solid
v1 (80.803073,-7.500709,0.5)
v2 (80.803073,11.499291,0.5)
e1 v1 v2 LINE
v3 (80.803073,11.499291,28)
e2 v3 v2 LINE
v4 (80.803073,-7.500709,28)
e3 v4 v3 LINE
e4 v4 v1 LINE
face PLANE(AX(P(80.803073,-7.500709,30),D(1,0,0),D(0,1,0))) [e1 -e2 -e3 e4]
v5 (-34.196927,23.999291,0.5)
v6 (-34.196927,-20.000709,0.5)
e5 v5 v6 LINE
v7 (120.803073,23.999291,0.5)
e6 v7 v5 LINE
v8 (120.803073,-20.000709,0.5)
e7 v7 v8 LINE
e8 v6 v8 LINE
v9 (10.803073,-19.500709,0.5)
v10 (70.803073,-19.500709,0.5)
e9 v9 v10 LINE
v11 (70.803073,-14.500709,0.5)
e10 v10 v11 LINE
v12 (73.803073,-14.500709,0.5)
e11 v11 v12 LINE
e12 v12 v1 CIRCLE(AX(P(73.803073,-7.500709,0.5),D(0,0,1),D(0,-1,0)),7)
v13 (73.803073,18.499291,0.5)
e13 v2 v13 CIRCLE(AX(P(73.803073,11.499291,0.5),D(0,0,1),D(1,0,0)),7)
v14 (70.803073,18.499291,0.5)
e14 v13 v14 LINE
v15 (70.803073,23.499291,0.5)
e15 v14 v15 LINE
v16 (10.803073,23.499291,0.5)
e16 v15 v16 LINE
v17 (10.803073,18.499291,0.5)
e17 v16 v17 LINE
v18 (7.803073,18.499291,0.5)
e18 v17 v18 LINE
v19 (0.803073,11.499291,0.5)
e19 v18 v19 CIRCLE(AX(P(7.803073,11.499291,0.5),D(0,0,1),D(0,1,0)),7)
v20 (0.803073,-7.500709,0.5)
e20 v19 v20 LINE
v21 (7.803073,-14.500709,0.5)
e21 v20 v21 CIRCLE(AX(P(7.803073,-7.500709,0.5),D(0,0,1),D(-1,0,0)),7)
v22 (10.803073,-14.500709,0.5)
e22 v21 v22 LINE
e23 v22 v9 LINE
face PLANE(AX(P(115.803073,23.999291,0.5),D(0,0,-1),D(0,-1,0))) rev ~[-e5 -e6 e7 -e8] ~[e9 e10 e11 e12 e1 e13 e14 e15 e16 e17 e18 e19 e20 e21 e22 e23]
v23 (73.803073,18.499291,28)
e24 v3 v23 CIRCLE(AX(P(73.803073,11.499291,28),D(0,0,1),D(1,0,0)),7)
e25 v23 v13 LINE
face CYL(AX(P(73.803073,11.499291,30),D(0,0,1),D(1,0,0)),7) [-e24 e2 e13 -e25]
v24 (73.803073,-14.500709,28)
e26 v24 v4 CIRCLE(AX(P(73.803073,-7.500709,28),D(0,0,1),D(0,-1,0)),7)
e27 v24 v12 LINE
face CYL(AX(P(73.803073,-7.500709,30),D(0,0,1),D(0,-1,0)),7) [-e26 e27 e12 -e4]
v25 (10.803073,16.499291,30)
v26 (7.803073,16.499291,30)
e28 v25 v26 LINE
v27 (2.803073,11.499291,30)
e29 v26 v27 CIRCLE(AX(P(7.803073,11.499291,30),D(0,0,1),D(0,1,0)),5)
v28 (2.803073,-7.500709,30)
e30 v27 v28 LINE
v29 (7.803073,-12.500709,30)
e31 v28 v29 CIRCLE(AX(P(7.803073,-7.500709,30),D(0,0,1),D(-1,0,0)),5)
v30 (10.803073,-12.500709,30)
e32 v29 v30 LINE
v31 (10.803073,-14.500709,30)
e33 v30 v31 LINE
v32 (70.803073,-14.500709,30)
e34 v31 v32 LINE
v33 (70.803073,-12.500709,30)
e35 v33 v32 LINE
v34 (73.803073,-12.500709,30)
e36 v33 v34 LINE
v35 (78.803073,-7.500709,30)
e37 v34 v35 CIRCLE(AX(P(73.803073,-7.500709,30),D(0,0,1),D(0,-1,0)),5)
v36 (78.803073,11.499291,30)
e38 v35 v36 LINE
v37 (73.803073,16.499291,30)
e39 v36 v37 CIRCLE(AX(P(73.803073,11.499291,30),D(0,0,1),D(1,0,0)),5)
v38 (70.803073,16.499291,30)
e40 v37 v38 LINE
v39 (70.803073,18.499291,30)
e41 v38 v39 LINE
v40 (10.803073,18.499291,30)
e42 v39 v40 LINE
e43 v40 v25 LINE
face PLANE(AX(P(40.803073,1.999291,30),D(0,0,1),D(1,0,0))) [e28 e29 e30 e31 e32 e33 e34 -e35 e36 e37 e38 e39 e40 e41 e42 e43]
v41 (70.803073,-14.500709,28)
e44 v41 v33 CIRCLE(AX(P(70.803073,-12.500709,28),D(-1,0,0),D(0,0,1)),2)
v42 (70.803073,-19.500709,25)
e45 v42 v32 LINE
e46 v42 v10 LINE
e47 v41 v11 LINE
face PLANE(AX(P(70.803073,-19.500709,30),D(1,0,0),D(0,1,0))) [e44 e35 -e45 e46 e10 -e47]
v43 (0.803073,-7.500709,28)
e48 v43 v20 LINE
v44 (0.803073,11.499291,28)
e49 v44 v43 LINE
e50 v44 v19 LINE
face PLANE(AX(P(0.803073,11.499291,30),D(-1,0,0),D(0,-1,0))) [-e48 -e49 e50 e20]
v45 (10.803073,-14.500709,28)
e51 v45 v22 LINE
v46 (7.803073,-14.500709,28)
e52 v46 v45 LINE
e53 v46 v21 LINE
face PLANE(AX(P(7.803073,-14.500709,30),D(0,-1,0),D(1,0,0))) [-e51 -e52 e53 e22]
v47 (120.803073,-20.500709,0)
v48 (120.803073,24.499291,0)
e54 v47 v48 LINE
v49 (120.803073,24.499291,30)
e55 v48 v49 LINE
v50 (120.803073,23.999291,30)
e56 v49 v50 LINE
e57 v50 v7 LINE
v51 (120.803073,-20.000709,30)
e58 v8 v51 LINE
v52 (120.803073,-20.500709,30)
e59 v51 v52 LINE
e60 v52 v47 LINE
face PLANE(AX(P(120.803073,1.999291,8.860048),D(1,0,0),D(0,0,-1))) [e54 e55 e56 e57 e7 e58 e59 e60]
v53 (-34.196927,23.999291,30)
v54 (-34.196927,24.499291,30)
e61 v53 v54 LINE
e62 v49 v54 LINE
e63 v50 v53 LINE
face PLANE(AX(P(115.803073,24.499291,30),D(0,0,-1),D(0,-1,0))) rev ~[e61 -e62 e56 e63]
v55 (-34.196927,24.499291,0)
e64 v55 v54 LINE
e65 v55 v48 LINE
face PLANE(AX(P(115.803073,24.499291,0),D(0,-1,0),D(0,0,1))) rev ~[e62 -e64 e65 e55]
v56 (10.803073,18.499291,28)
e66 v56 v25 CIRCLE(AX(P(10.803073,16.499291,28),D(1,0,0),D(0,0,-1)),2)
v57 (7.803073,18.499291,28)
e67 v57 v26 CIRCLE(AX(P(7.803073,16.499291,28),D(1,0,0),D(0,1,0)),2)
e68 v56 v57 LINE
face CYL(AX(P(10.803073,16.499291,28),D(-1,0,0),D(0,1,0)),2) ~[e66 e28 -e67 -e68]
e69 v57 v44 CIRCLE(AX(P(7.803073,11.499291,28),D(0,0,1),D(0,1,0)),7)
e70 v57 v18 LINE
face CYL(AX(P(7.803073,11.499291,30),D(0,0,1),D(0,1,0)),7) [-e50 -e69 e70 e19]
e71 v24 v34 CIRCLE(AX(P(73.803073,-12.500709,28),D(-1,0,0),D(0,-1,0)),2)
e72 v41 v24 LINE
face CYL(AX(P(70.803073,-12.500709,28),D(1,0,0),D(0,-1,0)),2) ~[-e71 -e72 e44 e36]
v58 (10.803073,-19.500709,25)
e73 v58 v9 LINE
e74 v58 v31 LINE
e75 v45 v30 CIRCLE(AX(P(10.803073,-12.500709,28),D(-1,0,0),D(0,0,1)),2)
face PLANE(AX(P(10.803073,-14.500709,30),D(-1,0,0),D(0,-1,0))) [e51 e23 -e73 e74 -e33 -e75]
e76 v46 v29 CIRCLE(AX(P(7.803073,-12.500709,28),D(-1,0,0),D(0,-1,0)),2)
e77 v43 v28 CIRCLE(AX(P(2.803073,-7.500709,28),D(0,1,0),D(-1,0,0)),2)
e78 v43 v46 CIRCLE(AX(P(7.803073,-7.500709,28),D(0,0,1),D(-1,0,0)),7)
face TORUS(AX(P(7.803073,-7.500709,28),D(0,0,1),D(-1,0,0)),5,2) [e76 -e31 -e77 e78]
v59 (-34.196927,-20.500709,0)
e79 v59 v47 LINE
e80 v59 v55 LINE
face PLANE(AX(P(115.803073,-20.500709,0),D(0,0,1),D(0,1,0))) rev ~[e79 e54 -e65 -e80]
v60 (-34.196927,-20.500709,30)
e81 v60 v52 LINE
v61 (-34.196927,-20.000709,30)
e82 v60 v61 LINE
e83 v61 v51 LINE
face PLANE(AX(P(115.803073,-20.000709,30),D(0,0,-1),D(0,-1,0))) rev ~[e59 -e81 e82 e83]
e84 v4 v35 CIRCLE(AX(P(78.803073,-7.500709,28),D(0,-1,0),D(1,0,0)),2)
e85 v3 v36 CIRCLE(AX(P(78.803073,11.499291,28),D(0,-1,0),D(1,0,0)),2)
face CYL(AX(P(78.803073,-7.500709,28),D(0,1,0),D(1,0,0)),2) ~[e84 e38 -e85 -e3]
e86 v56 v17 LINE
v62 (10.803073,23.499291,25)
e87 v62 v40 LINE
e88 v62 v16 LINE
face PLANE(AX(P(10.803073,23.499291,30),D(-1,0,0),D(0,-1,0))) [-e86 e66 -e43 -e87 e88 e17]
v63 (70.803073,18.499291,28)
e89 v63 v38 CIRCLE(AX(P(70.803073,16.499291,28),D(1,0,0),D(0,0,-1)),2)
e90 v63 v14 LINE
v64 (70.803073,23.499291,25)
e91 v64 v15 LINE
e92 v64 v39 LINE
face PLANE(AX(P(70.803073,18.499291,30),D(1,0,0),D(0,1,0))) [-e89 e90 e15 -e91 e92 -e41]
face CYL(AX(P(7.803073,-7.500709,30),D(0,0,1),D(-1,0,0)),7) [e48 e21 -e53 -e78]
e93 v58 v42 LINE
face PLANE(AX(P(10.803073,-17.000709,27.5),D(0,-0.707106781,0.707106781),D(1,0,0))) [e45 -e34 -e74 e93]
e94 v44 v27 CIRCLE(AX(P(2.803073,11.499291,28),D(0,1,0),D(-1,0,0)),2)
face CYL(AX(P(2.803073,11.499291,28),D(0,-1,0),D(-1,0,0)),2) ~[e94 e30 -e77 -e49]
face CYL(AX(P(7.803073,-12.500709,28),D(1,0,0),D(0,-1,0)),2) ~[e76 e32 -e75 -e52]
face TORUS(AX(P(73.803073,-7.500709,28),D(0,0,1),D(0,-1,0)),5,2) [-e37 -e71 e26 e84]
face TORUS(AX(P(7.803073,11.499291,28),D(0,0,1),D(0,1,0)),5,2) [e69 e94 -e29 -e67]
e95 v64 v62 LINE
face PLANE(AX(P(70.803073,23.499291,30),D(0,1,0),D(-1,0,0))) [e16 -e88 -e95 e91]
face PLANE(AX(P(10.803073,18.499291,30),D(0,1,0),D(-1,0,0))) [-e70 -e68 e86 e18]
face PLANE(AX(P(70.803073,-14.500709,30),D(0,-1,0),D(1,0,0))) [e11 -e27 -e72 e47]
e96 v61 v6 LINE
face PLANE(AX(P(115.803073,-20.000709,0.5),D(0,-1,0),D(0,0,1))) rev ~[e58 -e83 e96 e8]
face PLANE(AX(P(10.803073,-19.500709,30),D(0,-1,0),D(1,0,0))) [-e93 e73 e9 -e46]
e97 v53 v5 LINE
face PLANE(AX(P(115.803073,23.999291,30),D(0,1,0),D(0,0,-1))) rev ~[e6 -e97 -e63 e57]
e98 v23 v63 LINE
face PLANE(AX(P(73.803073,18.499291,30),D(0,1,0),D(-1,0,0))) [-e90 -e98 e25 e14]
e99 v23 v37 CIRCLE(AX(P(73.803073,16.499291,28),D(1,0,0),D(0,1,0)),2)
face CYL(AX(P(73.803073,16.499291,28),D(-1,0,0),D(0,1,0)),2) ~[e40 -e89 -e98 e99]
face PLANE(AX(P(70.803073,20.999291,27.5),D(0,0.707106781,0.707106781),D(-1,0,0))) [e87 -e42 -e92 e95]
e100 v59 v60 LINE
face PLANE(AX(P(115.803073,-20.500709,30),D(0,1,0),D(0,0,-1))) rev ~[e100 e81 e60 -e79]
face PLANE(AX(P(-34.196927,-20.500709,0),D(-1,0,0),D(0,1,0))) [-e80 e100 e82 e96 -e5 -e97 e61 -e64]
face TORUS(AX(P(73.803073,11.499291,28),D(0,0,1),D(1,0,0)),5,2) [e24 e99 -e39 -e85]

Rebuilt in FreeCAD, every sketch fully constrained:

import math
import FreeCAD as App
import Part
import Sketcher
from FreeCAD import Vector


def edges_at(feature, points):
    """Names of the edges that pass closest to the given points."""
    edges = feature.Shape.Edges
    near = lambda p: min(range(len(edges)), key=lambda i: edges[i].distToShape(Part.Vertex(*p))[0])
    return sorted({f"Edge{near(p) + 1}" for p in points})

doc = App.newDocument("Part")
params = doc.addObject("Spreadsheet::Sheet", "Params")
for row, (alias, value) in enumerate([
    ("sketch1_width", "150 mm"),
    ("sketch1_height", "45 mm"),
    ("pad1_length", "30 mm"),
    ("sketch2_radius", "7 mm"),
    ("sketch2_width", "150 mm"),
    ("sketch2_width2", "60 mm"),
    ("sketch2_width3", "3 mm"),
    ("sketch2_height", "44 mm"),
    ("pocket1_length", "29.5 mm"),
    ("fillet_radius", "2 mm"),
    ("chamfer_size", "5 mm"),
    ("sketch3_width", "44 mm"),
    ("sketch3_width2", "45 mm"),
    ("sketch3_height", "30 mm"),
    ("sketch3_height2", "29.5 mm"),
    ("pad2_length", "5 mm"),
], start=1):
    params.set(f"A{row}", alias)
    params.set(f"B{row}", "=" + value)
    params.setAlias(f"B{row}", alias)

body = doc.addObject("PartDesign::Body", "Body")

sketch1 = doc.addObject("Sketcher::SketchObject", "Sketch")
body.addObject(sketch1)
sketch1.AttachmentSupport = (doc.XY_Plane, [""])
sketch1.MapMode = "FlatFace"
sketch1.addGeometry([
    Part.LineSegment(Vector(-34, 24, 0), Vector(-34, -21, 0)),
    Part.LineSegment(Vector(-34, -21, 0), Vector(116, -21, 0)),
    Part.LineSegment(Vector(116, -21, 0), Vector(116, 24, 0)),
    Part.LineSegment(Vector(116, 24, 0), Vector(-34, 24, 0)),
], False)
sketch1.addConstraint([
    Sketcher.Constraint("Coincident", 0, 2, 1, 1),
    Sketcher.Constraint("Coincident", 1, 2, 2, 1),
    Sketcher.Constraint("Coincident", 2, 2, 3, 1),
    Sketcher.Constraint("Coincident", 3, 2, 0, 1),
    Sketcher.Constraint("Vertical", 0),
    Sketcher.Constraint("Horizontal", 1),
    Sketcher.Constraint("Vertical", 2),
    Sketcher.Constraint("Horizontal", 3),
    Sketcher.Constraint("DistanceX", 1, 1, 1, 2, 150.0),
    Sketcher.Constraint("DistanceY", 0, 2, 0, 1, 45.0),
    Sketcher.Constraint("DistanceY", 0, 2, -1, 1, 20.500709),
    Sketcher.Constraint("DistanceX", 0, 2, -1, 1, 34.196927),
])
sketch1.setExpression("Constraints[8]", "Params.sketch1_width")
sketch1.setExpression("Constraints[9]", "Params.sketch1_height")
pad1 = doc.addObject("PartDesign::Pad", "Pad")
body.addObject(pad1)
pad1.Profile = sketch1
pad1.setExpression("Length", "Params.pad1_length")

sketch2 = doc.addObject("Sketcher::SketchObject", "Sketch001")
body.addObject(sketch2)
sketch2.AttachmentSupport = (doc.XY_Plane, [""])
sketch2.MapMode = "FlatFace"
sketch2.AttachmentOffset = App.Placement(Vector(0, 0, 30), App.Rotation())
sketch2.addGeometry([
    Part.LineSegment(Vector(-34.2, 24, 0), Vector(-34.2, -20, 0)),
    Part.LineSegment(Vector(-34.2, -20, 0), Vector(115.8, -20, 0)),
    Part.LineSegment(Vector(115.8, -20, 0), Vector(115.8, 24, 0)),
    Part.LineSegment(Vector(115.8, 24, 0), Vector(-34.2, 24, 0)),
    Part.LineSegment(Vector(70.8, -14.5, 0), Vector(70.8, -19.5, 0)),
    Part.LineSegment(Vector(70.8, -19.5, 0), Vector(10.8, -19.5, 0)),
    Part.LineSegment(Vector(10.8, -19.5, 0), Vector(10.8, -14.5, 0)),
    Part.LineSegment(Vector(10.8, -14.5, 0), Vector(7.8, -14.5, 0)),
    Part.ArcOfCircle(Part.Circle(Vector(7.8, -7.5, 0), Vector(0, 0, 1), 7), math.radians(-180), math.radians(-90)),
    Part.LineSegment(Vector(0.8, -7.5, 0), Vector(0.8, 11.5, 0)),
    Part.ArcOfCircle(Part.Circle(Vector(7.8, 11.5, 0), Vector(0, 0, 1), 7), math.radians(90), math.radians(180)),
    Part.LineSegment(Vector(7.8, 18.5, 0), Vector(10.8, 18.5, 0)),
    Part.LineSegment(Vector(10.8, 18.5, 0), Vector(10.8, 23.5, 0)),
    Part.LineSegment(Vector(10.8, 23.5, 0), Vector(70.8, 23.5, 0)),
    Part.LineSegment(Vector(70.8, 23.5, 0), Vector(70.8, 18.5, 0)),
    Part.LineSegment(Vector(70.8, 18.5, 0), Vector(73.8, 18.5, 0)),
    Part.ArcOfCircle(Part.Circle(Vector(73.8, 11.5, 0), Vector(0, 0, 1), 7), math.radians(0), math.radians(90)),
    Part.LineSegment(Vector(80.8, 11.5, 0), Vector(80.8, -7.5, 0)),
    Part.ArcOfCircle(Part.Circle(Vector(73.8, -7.5, 0), Vector(0, 0, 1), 7), math.radians(-90), math.radians(0)),
    Part.LineSegment(Vector(73.8, -14.5, 0), Vector(70.8, -14.5, 0)),
], False)
sketch2.addConstraint([
    Sketcher.Constraint("Coincident", 0, 2, 1, 1),
    Sketcher.Constraint("Coincident", 1, 2, 2, 1),
    Sketcher.Constraint("Coincident", 2, 2, 3, 1),
    Sketcher.Constraint("Coincident", 3, 2, 0, 1),
    Sketcher.Constraint("Coincident", 4, 2, 5, 1),
    Sketcher.Constraint("Coincident", 5, 2, 6, 1),
    Sketcher.Constraint("Coincident", 6, 2, 7, 1),
    Sketcher.Constraint("Tangent", 7, 2, 8, 2),
    Sketcher.Constraint("Tangent", 8, 1, 9, 1),
    Sketcher.Constraint("Tangent", 9, 2, 10, 2),
    Sketcher.Constraint("Tangent", 10, 1, 11, 1),
    Sketcher.Constraint("Coincident", 11, 2, 12, 1),
    Sketcher.Constraint("Coincident", 12, 2, 13, 1),
    Sketcher.Constraint("Coincident", 13, 2, 14, 1),
    Sketcher.Constraint("Coincident", 14, 2, 15, 1),
    Sketcher.Constraint("Tangent", 15, 2, 16, 2),
    Sketcher.Constraint("Tangent", 16, 1, 17, 1),
    Sketcher.Constraint("Tangent", 17, 2, 18, 2),
    Sketcher.Constraint("Tangent", 18, 1, 19, 1),
    Sketcher.Constraint("Coincident", 19, 2, 4, 1),
    Sketcher.Constraint("Vertical", 0),
    Sketcher.Constraint("Horizontal", 1),
    Sketcher.Constraint("Vertical", 2),
    Sketcher.Constraint("Horizontal", 3),
    Sketcher.Constraint("Vertical", 4),
    Sketcher.Constraint("Horizontal", 5),
    Sketcher.Constraint("Vertical", 6),
    Sketcher.Constraint("Horizontal", 7),
    Sketcher.Constraint("Vertical", 9),
    Sketcher.Constraint("Horizontal", 11),
    Sketcher.Constraint("Vertical", 12),
    Sketcher.Constraint("Horizontal", 13),
    Sketcher.Constraint("Vertical", 14),
    Sketcher.Constraint("Horizontal", 15),
    Sketcher.Constraint("Vertical", 17),
    Sketcher.Constraint("Horizontal", 19),
    Sketcher.Constraint("Equal", 8, 10),
    Sketcher.Constraint("Equal", 10, 16),
    Sketcher.Constraint("Equal", 16, 18),
    Sketcher.Constraint("Horizontal", 10, 3, 16, 3),
    Sketcher.Constraint("Horizontal", 8, 3, 18, 3),
    Sketcher.Constraint("Vertical", 6, 2, 11, 2),
    Sketcher.Constraint("Vertical", 4, 2, 13, 2),
    Sketcher.Constraint("Equal", 11, 15),
    Sketcher.Constraint("Equal", 6, 12),
    Sketcher.Constraint("Radius", 8, 7.0),
    Sketcher.Constraint("DistanceX", 1, 1, 1, 2, 150.0),
    Sketcher.Constraint("DistanceX", 5, 2, 5, 1, 60.0),
    Sketcher.Constraint("DistanceX", 7, 2, 7, 1, 3.0),
    Sketcher.Constraint("DistanceY", 0, 2, 0, 1, 44.0),
    Sketcher.Constraint("DistanceY", 4, 2, 4, 1, 5.0),
    Sketcher.Constraint("DistanceY", 9, 1, 9, 2, 19.0),
    Sketcher.Constraint("DistanceX", 0, 2, 8, 3, 42.0),
    Sketcher.Constraint("DistanceY", 0, 2, 8, 3, 12.5),
    Sketcher.Constraint("DistanceY", 8, 3, -1, 1, 7.500709),
    Sketcher.Constraint("DistanceX", -1, 1, 8, 3, 7.803073),
])
sketch2.setExpression("Constraints[45]", "Params.sketch2_radius")
sketch2.setExpression("Constraints[46]", "Params.sketch2_width")
sketch2.setExpression("Constraints[47]", "Params.sketch2_width2")
sketch2.setExpression("Constraints[48]", "Params.sketch2_width3")
sketch2.setExpression("Constraints[49]", "Params.sketch2_height")
pocket1 = doc.addObject("PartDesign::Pocket", "Pocket")
body.addObject(pocket1)
pocket1.Profile = sketch2
pocket1.setExpression("Length", "Params.pocket1_length")
doc.recompute()

fillet = doc.addObject("PartDesign::Fillet", "Fillet")
body.addObject(fillet)
fillet.Base = (pocket1, edges_at(pocket1, [
    (78.753, -12.45, 30),
    (80.803, 1.999, 30),
    (78.753, 16.449, 30),
    (72.303, 18.499, 30),
    (9.303, 18.499, 30),
    (2.853, 16.449, 30),
    (0.803, 1.999, 30),
    (2.853, -12.45, 30),
    (9.303, -14.501, 30),
    (72.303, -14.501, 30),
]))
fillet.setExpression("Radius", "Params.fillet_radius")
doc.recompute()

chamfer = doc.addObject("PartDesign::Chamfer", "Chamfer")
body.addObject(chamfer)
chamfer.Base = (fillet, edges_at(fillet, [(40.803, 23.499, 30), (40.803, -19.501, 30)]))
chamfer.setExpression("Size", "Params.chamfer_size")

sketch3 = doc.addObject("Sketcher::SketchObject", "Sketch002")
body.addObject(sketch3)
sketch3.AttachmentSupport = (doc.YZ_Plane, [""])
sketch3.MapMode = "FlatFace"
sketch3.AttachmentOffset = App.Placement(Vector(0, 0, 115.803073), App.Rotation())
sketch3.addGeometry([
    Part.LineSegment(Vector(24, 0.5, 0), Vector(-20, 0.5, 0)),
    Part.LineSegment(Vector(-20, 0.5, 0), Vector(-20, 30, 0)),
    Part.LineSegment(Vector(-20, 30, 0), Vector(-20.5, 30, 0)),
    Part.LineSegment(Vector(-20.5, 30, 0), Vector(-20.5, 0, 0)),
    Part.LineSegment(Vector(-20.5, 0, 0), Vector(24.5, 0, 0)),
    Part.LineSegment(Vector(24.5, 0, 0), Vector(24.5, 30, 0)),
    Part.LineSegment(Vector(24.5, 30, 0), Vector(24, 30, 0)),
    Part.LineSegment(Vector(24, 30, 0), Vector(24, 0.5, 0)),
], False)
sketch3.addConstraint([
    Sketcher.Constraint("Coincident", 0, 2, 1, 1),
    Sketcher.Constraint("Coincident", 1, 2, 2, 1),
    Sketcher.Constraint("Coincident", 2, 2, 3, 1),
    Sketcher.Constraint("Coincident", 3, 2, 4, 1),
    Sketcher.Constraint("Coincident", 4, 2, 5, 1),
    Sketcher.Constraint("Coincident", 5, 2, 6, 1),
    Sketcher.Constraint("Coincident", 6, 2, 7, 1),
    Sketcher.Constraint("Coincident", 7, 2, 0, 1),
    Sketcher.Constraint("Horizontal", 0),
    Sketcher.Constraint("Vertical", 1),
    Sketcher.Constraint("Horizontal", 2),
    Sketcher.Constraint("Vertical", 3),
    Sketcher.Constraint("Horizontal", 4),
    Sketcher.Constraint("Vertical", 5),
    Sketcher.Constraint("Horizontal", 6),
    Sketcher.Constraint("Vertical", 7),
    Sketcher.Constraint("PointOnObject", 3, 2, -1),
    Sketcher.Constraint("Horizontal", 2, 2, 5, 2),
    Sketcher.Constraint("Equal", 2, 6),
    Sketcher.Constraint("DistanceX", 0, 2, 0, 1, 44.0),
    Sketcher.Constraint("DistanceX", 4, 1, 4, 2, 45.0),
    Sketcher.Constraint("DistanceY", 3, 2, 3, 1, 30.0),
    Sketcher.Constraint("DistanceY", 1, 1, 1, 2, 29.5),
    Sketcher.Constraint("DistanceX", 0, 2, -1, 1, 20.000709),
])
sketch3.setExpression("Constraints[19]", "Params.sketch3_width")
sketch3.setExpression("Constraints[20]", "Params.sketch3_width2")
sketch3.setExpression("Constraints[21]", "Params.sketch3_height")
sketch3.setExpression("Constraints[22]", "Params.sketch3_height2")
pad2 = doc.addObject("PartDesign::Pad", "Pad001")
body.addObject(pad2)
pad2.Profile = sketch3
pad2.setExpression("Length", "Params.pad2_length")

doc.recompute()
